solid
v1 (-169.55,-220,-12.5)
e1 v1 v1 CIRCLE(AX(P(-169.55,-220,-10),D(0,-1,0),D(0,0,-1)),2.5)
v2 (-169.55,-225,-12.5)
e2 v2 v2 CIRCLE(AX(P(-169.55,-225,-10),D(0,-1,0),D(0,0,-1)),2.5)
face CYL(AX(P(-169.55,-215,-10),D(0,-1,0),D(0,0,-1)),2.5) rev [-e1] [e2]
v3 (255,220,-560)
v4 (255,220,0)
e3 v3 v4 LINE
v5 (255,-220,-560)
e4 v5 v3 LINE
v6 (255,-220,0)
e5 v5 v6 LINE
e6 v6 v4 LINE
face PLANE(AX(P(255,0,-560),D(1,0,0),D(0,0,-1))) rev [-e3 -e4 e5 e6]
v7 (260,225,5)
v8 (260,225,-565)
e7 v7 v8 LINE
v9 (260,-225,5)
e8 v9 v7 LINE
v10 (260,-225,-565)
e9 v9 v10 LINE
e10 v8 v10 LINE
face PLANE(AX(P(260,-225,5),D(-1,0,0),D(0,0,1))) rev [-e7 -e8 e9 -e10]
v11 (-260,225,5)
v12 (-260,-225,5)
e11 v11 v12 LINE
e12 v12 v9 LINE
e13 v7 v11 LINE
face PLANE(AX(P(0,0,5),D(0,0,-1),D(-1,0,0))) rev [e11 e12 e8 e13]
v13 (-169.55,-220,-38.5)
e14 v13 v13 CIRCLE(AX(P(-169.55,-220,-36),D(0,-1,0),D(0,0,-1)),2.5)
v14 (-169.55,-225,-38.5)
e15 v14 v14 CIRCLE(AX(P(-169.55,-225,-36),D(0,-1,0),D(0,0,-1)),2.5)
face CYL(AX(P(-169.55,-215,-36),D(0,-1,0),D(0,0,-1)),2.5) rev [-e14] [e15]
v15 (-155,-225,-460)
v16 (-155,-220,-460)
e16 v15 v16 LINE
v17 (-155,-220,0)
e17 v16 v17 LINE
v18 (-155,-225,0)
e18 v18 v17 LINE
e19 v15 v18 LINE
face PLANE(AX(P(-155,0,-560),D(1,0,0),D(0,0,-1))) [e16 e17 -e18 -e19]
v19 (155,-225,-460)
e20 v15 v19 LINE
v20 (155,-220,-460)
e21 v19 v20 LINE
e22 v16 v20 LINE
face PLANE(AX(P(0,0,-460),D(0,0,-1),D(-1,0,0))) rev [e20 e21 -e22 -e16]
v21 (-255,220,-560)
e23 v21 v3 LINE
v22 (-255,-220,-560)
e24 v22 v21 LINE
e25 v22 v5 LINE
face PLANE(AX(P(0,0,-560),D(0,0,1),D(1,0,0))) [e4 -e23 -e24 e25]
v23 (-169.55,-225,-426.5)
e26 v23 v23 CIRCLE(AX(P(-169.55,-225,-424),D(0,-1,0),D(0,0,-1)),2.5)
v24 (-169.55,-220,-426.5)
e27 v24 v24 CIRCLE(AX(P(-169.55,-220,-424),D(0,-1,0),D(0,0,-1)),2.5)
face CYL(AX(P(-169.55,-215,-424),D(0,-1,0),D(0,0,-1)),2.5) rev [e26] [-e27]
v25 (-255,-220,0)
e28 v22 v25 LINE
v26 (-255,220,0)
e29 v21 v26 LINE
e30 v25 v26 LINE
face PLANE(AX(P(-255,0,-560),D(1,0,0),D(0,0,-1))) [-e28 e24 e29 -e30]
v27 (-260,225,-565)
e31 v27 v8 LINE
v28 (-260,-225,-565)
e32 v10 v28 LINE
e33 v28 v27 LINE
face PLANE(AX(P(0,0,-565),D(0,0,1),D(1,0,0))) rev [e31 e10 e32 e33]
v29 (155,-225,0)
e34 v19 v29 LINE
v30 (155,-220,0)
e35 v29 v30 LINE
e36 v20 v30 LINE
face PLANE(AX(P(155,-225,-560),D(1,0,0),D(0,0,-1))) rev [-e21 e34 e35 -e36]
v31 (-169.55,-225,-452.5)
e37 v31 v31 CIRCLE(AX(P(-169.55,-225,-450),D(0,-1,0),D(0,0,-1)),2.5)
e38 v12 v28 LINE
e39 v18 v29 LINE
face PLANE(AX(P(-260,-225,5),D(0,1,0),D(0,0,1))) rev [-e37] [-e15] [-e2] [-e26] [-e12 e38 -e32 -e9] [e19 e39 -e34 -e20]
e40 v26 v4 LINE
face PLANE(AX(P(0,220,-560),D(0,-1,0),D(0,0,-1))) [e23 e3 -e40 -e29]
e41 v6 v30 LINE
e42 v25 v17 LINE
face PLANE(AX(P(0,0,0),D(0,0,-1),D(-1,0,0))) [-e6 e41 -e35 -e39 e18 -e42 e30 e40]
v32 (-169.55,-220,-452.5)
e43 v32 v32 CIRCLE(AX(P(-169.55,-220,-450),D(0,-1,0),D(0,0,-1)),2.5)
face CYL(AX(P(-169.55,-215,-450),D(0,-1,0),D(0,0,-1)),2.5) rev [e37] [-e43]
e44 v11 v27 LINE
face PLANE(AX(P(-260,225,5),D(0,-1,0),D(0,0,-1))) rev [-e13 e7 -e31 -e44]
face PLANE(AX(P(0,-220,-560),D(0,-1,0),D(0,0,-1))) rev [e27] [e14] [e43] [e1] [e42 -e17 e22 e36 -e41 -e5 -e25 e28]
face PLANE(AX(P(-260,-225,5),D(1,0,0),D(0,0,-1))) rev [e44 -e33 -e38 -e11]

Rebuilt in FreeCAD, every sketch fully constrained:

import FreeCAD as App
import Part
import Sketcher
from FreeCAD import Vector
Q = App.Units.Quantity

doc = App.newDocument("Part")
body = doc.addObject("PartDesign::Body", "Body")

# Sketch on XY plane
sketch1 = body.newObject("Sketcher::SketchObject", "Sketch")
sketch1.AttachmentSupport = (doc.getObject("XY_Plane"), [""])
sketch1.MapMode = "FlatFace"
sketch1.addGeometry([
    Part.LineSegment(Vector(-260, 225, 0), Vector(-260, -225, 0)),
    Part.LineSegment(Vector(-260, -225, 0), Vector(260, -225, 0)),
    Part.LineSegment(Vector(260, -225, 0), Vector(260, 225, 0)),
    Part.LineSegment(Vector(260, 225, 0), Vector(-260, 225, 0)),
], False)
sketch1.addConstraint([
    Sketcher.Constraint("Coincident", 0, 2, 1, 1),
    Sketcher.Constraint("Coincident", 1, 2, 2, 1),
    Sketcher.Constraint("Coincident", 2, 2, 3, 1),
    Sketcher.Constraint("Coincident", 3, 2, 0, 1),
    Sketcher.Constraint("Vertical", 0),
    Sketcher.Constraint("Horizontal", 1),
    Sketcher.Constraint("Vertical", 2),
    Sketcher.Constraint("Horizontal", 3),
    Sketcher.Constraint("Symmetric", 0, 2, 2, 2, -1, 1),
    Sketcher.Constraint("DistanceX", 1, 1, 1, 2, Q("520 mm")),
    Sketcher.Constraint("DistanceY", 0, 2, 0, 1, Q("450 mm")),
])
pad1 = body.newObject("PartDesign::Pad", "Pad")
pad1.Profile = sketch1
pad1.Length = 5

# Sketch on XY plane
sketch2 = body.newObject("Sketcher::SketchObject", "Sketch001")
sketch2.AttachmentSupport = (doc.getObject("XY_Plane"), [""])
sketch2.MapMode = "FlatFace"
sketch2.addGeometry([
    Part.LineSegment(Vector(-260, 225, 0), Vector(260, 225, 0)),  # 0
    Part.LineSegment(Vector(260, 225, 0), Vector(260, -225, 0)),  # 1
    Part.LineSegment(Vector(260, -225, 0), Vector(155, -225, 0)),  # 2
    Part.LineSegment(Vector(155, -225, 0), Vector(155, -220, 0)),  # 3
    Part.LineSegment(Vector(155, -220, 0), Vector(255, -220, 0)),  # 4
    Part.LineSegment(Vector(255, -220, 0), Vector(255, 220, 0)),  # 5
    Part.LineSegment(Vector(255, 220, 0), Vector(-255, 220, 0)),  # 6
    Part.LineSegment(Vector(-255, 220, 0), Vector(-255, -220, 0)),  # 7
    Part.LineSegment(Vector(-255, -220, 0), Vector(-155, -220, 0)),  # 8
    Part.LineSegment(Vector(-155, -220, 0), Vector(-155, -225, 0)),  # 9
    Part.LineSegment(Vector(-155, -225, 0), Vector(-260, -225, 0)),  # 10
    Part.LineSegment(Vector(-260, -225, 0), Vector(-260, 225, 0)),  # 11
], False)
sketch2.addConstraint([
    Sketcher.Constraint("Coincident", 0, 2, 1, 1),
    Sketcher.Constraint("Coincident", 1, 2, 2, 1),
    Sketcher.Constraint("Coincident", 2, 2, 3, 1),
    Sketcher.Constraint("Coincident", 3, 2, 4, 1),
    Sketcher.Constraint("Coincident", 4, 2, 5, 1),
    Sketcher.Constraint("Coincident", 5, 2, 6, 1),
    Sketcher.Constraint("Coincident", 6, 2, 7, 1),
    Sketcher.Constraint("Coincident", 7, 2, 8, 1),
    Sketcher.Constraint("Coincident", 8, 2, 9, 1),
    Sketcher.Constraint("Coincident", 9, 2, 10, 1),
    Sketcher.Constraint("Coincident", 10, 2, 11, 1),
    Sketcher.Constraint("Coincident", 11, 2, 0, 1),
    Sketcher.Constraint("Horizontal", 0),
    Sketcher.Constraint("Vertical", 1),
    Sketcher.Constraint("Horizontal", 2),
    Sketcher.Constraint("Vertical", 3),
    Sketcher.Constraint("Horizontal", 4),
    Sketcher.Constraint("Vertical", 5),
    Sketcher.Constraint("Horizontal", 6),
    Sketcher.Constraint("Vertical", 7),
    Sketcher.Constraint("Horizontal", 8),
    Sketcher.Constraint("Vertical", 9),
    Sketcher.Constraint("Horizontal", 10),
    Sketcher.Constraint("Vertical", 11),
    Sketcher.Constraint("Symmetric", 4, 2, 6, 2, -1, 1),
    Sketcher.Constraint("Symmetric", 0, 2, 10, 2, -1, 1),
    Sketcher.Constraint("Symmetric", 3, 2, 8, 2, -2),
    Sketcher.Constraint("Horizontal", 2, 2, 9, 2),
    Sketcher.Constraint("DistanceX", 0, 1, 0, 2, Q("520 mm")),
    Sketcher.Constraint("DistanceX", 2, 2, 2, 1, Q("105 mm")),
    Sketcher.Constraint("DistanceX", 4, 1, 4, 2, Q("100 mm")),
    Sketcher.Constraint("DistanceY", 1, 2, 1, 1, Q("450 mm")),
    Sketcher.Constraint("DistanceY", 3, 1, 3, 2, Q("5 mm")),
])
pad2 = body.newObject("PartDesign::Pad", "Pad001")
pad2.Profile = sketch2
pad2.Length = 560
pad2.Reversed = True

# Sketch on XY plane
sketch3 = body.newObject("Sketcher::SketchObject", "Sketch002")
sketch3.AttachmentSupport = (doc.getObject("XY_Plane"), [""])
sketch3.MapMode = "FlatFace"
sketch3.AttachmentOffset = App.Placement(Vector(0, 0, -560), App.Rotation())
sketch3.addGeometry([
    Part.LineSegment(Vector(260, 225, 0), Vector(260, -225, 0)),
    Part.LineSegment(Vector(260, -225, 0), Vector(-260, -225, 0)),
    Part.LineSegment(Vector(-260, -225, 0), Vector(-260, 225, 0)),
    Part.LineSegment(Vector(-260, 225, 0), Vector(260, 225, 0)),
], False)
sketch3.addConstraint([
    Sketcher.Constraint("Coincident", 0, 2, 1, 1),
    Sketcher.Constraint("Coincident", 1, 2, 2, 1),
    Sketcher.Constraint("Coincident", 2, 2, 3, 1),
    Sketcher.Constraint("Coincident", 3, 2, 0, 1),
    Sketcher.Constraint("Vertical", 0),
    Sketcher.Constraint("Horizontal", 1),
    Sketcher.Constraint("Vertical", 2),
    Sketcher.Constraint("Horizontal", 3),
    Sketcher.Constraint("Symmetric", 0, 2, 2, 2, -1, 1),
    Sketcher.Constraint("DistanceX", 1, 2, 1, 1, Q("520 mm")),
    Sketcher.Constraint("DistanceY", 0, 2, 0, 1, Q("450 mm")),
])
pad3 = body.newObject("PartDesign::Pad", "Pad002")
pad3.Profile = sketch3
pad3.Length = 5
pad3.Reversed = True

# Sketch on XY plane
sketch4 = body.newObject("Sketcher::SketchObject", "Sketch003")
sketch4.AttachmentSupport = (doc.getObject("XY_Plane"), [""])
sketch4.MapMode = "FlatFace"
sketch4.AttachmentOffset = App.Placement(Vector(0, 0, -560), App.Rotation())
sketch4.addGeometry([
    Part.LineSegment(Vector(-260, 225, 0), Vector(-260, -225, 0)),  # 0
    Part.LineSegment(Vector(-260, -225, 0), Vector(260, -225, 0)),  # 1
    Part.LineSegment(Vector(260, -225, 0), Vector(260, 225, 0)),  # 2
    Part.LineSegment(Vector(260, 225, 0), Vector(-260, 225, 0)),  # 3
    Part.LineSegment(Vector(255, -220, 0), Vector(-255, -220, 0)),  # 4
    Part.LineSegment(Vector(-255, -220, 0), Vector(-255, 220, 0)),  # 5
    Part.LineSegment(Vector(-255, 220, 0), Vector(255, 220, 0)),  # 6
    Part.LineSegment(Vector(255, 220, 0), Vector(255, -220, 0)),  # 7
], False)
sketch4.addConstraint([
    Sketcher.Constraint("Coincident", 0, 2, 1, 1),
    Sketcher.Constraint("Coincident", 1, 2, 2, 1),
    Sketcher.Constraint("Coincident", 2, 2, 3, 1),
    Sketcher.Constraint("Coincident", 3, 2, 0, 1),
    Sketcher.Constraint("Coincident", 4, 2, 5, 1),
    Sketcher.Constraint("Coincident", 5, 2, 6, 1),
    Sketcher.Constraint("Coincident", 6, 2, 7, 1),
    Sketcher.Constraint("Coincident", 7, 2, 4, 1),
    Sketcher.Constraint("Vertical", 0),
    Sketcher.Constraint("Horizontal", 1),
    Sketcher.Constraint("Vertical", 2),
    Sketcher.Constraint("Horizontal", 3),
    Sketcher.Constraint("Horizontal", 4),
    Sketcher.Constraint("Vertical", 5),
    Sketcher.Constraint("Horizontal", 6),
    Sketcher.Constraint("Vertical", 7),
    Sketcher.Constraint("Symmetric", 0, 2, 2, 2, -1, 1),
    Sketcher.Constraint("Symmetric", 4, 2, 6, 2, -1, 1),
    Sketcher.Constraint("DistanceX", 1, 1, 1, 2, Q("520 mm")),
    Sketcher.Constraint("DistanceX", 4, 2, 4, 1, Q("510 mm")),
    Sketcher.Constraint("DistanceY", 0, 2, 0, 1, Q("450 mm")),
    Sketcher.Constraint("DistanceY", 5, 1, 5, 2, Q("440 mm")),
])
pad4 = body.newObject("PartDesign::Pad", "Pad003")
pad4.Profile = sketch4
pad4.Length = 100

# Sketch on XZ plane
sketch5 = body.newObject("Sketcher::SketchObject", "Sketch004")
sketch5.AttachmentSupport = (doc.getObject("XZ_Plane"), [""])
sketch5.MapMode = "FlatFace"
sketch5.AttachmentOffset = App.Placement(Vector(0, 0, 225), App.Rotation())
sketch5.addGeometry([
    Part.Circle(Vector(-169.6, -10, 0), Vector(0, 0, 1), 2.5),
    Part.Circle(Vector(-169.6, -36, 0), Vector(0, 0, 1), 2.5),
    Part.Circle(Vector(-169.6, -450, 0), Vector(0, 0, 1), 2.5),
    Part.Circle(Vector(-169.6, -424, 0), Vector(0, 0, 1), 2.5),
], False)
sketch5.addConstraint([
    Sketcher.Constraint("Equal", 0, 1),
    Sketcher.Constraint("Equal", 1, 2),
    Sketcher.Constraint("Equal", 2, 3),
    Sketcher.Constraint("Vertical", 0, 3, 1, 3),
    Sketcher.Constraint("Vertical", 1, 3, 2, 3),
    Sketcher.Constraint("Vertical", 2, 3, 3, 3),
    Sketcher.Constraint("Diameter", 0, Q("5 mm")),
    Sketcher.Constraint("DistanceY", 0, 3, -1, 1, Q("10 mm")),
    Sketcher.Constraint("DistanceY", 1, 3, -1, 1, Q("36 mm")),
    Sketcher.Constraint("DistanceY", 2, 3, -1, 1, Q("450 mm")),
    Sketcher.Constraint("DistanceY", 3, 3, -1, 1, Q("424 mm")),
    Sketcher.Constraint("DistanceX", 0, 3, -1, 1, Q("169.55 mm")),
])
pocket1 = body.newObject("PartDesign::Pocket", "Pocket")
pocket1.Profile = sketch5
pocket1.Length = 10

doc.recompute()
